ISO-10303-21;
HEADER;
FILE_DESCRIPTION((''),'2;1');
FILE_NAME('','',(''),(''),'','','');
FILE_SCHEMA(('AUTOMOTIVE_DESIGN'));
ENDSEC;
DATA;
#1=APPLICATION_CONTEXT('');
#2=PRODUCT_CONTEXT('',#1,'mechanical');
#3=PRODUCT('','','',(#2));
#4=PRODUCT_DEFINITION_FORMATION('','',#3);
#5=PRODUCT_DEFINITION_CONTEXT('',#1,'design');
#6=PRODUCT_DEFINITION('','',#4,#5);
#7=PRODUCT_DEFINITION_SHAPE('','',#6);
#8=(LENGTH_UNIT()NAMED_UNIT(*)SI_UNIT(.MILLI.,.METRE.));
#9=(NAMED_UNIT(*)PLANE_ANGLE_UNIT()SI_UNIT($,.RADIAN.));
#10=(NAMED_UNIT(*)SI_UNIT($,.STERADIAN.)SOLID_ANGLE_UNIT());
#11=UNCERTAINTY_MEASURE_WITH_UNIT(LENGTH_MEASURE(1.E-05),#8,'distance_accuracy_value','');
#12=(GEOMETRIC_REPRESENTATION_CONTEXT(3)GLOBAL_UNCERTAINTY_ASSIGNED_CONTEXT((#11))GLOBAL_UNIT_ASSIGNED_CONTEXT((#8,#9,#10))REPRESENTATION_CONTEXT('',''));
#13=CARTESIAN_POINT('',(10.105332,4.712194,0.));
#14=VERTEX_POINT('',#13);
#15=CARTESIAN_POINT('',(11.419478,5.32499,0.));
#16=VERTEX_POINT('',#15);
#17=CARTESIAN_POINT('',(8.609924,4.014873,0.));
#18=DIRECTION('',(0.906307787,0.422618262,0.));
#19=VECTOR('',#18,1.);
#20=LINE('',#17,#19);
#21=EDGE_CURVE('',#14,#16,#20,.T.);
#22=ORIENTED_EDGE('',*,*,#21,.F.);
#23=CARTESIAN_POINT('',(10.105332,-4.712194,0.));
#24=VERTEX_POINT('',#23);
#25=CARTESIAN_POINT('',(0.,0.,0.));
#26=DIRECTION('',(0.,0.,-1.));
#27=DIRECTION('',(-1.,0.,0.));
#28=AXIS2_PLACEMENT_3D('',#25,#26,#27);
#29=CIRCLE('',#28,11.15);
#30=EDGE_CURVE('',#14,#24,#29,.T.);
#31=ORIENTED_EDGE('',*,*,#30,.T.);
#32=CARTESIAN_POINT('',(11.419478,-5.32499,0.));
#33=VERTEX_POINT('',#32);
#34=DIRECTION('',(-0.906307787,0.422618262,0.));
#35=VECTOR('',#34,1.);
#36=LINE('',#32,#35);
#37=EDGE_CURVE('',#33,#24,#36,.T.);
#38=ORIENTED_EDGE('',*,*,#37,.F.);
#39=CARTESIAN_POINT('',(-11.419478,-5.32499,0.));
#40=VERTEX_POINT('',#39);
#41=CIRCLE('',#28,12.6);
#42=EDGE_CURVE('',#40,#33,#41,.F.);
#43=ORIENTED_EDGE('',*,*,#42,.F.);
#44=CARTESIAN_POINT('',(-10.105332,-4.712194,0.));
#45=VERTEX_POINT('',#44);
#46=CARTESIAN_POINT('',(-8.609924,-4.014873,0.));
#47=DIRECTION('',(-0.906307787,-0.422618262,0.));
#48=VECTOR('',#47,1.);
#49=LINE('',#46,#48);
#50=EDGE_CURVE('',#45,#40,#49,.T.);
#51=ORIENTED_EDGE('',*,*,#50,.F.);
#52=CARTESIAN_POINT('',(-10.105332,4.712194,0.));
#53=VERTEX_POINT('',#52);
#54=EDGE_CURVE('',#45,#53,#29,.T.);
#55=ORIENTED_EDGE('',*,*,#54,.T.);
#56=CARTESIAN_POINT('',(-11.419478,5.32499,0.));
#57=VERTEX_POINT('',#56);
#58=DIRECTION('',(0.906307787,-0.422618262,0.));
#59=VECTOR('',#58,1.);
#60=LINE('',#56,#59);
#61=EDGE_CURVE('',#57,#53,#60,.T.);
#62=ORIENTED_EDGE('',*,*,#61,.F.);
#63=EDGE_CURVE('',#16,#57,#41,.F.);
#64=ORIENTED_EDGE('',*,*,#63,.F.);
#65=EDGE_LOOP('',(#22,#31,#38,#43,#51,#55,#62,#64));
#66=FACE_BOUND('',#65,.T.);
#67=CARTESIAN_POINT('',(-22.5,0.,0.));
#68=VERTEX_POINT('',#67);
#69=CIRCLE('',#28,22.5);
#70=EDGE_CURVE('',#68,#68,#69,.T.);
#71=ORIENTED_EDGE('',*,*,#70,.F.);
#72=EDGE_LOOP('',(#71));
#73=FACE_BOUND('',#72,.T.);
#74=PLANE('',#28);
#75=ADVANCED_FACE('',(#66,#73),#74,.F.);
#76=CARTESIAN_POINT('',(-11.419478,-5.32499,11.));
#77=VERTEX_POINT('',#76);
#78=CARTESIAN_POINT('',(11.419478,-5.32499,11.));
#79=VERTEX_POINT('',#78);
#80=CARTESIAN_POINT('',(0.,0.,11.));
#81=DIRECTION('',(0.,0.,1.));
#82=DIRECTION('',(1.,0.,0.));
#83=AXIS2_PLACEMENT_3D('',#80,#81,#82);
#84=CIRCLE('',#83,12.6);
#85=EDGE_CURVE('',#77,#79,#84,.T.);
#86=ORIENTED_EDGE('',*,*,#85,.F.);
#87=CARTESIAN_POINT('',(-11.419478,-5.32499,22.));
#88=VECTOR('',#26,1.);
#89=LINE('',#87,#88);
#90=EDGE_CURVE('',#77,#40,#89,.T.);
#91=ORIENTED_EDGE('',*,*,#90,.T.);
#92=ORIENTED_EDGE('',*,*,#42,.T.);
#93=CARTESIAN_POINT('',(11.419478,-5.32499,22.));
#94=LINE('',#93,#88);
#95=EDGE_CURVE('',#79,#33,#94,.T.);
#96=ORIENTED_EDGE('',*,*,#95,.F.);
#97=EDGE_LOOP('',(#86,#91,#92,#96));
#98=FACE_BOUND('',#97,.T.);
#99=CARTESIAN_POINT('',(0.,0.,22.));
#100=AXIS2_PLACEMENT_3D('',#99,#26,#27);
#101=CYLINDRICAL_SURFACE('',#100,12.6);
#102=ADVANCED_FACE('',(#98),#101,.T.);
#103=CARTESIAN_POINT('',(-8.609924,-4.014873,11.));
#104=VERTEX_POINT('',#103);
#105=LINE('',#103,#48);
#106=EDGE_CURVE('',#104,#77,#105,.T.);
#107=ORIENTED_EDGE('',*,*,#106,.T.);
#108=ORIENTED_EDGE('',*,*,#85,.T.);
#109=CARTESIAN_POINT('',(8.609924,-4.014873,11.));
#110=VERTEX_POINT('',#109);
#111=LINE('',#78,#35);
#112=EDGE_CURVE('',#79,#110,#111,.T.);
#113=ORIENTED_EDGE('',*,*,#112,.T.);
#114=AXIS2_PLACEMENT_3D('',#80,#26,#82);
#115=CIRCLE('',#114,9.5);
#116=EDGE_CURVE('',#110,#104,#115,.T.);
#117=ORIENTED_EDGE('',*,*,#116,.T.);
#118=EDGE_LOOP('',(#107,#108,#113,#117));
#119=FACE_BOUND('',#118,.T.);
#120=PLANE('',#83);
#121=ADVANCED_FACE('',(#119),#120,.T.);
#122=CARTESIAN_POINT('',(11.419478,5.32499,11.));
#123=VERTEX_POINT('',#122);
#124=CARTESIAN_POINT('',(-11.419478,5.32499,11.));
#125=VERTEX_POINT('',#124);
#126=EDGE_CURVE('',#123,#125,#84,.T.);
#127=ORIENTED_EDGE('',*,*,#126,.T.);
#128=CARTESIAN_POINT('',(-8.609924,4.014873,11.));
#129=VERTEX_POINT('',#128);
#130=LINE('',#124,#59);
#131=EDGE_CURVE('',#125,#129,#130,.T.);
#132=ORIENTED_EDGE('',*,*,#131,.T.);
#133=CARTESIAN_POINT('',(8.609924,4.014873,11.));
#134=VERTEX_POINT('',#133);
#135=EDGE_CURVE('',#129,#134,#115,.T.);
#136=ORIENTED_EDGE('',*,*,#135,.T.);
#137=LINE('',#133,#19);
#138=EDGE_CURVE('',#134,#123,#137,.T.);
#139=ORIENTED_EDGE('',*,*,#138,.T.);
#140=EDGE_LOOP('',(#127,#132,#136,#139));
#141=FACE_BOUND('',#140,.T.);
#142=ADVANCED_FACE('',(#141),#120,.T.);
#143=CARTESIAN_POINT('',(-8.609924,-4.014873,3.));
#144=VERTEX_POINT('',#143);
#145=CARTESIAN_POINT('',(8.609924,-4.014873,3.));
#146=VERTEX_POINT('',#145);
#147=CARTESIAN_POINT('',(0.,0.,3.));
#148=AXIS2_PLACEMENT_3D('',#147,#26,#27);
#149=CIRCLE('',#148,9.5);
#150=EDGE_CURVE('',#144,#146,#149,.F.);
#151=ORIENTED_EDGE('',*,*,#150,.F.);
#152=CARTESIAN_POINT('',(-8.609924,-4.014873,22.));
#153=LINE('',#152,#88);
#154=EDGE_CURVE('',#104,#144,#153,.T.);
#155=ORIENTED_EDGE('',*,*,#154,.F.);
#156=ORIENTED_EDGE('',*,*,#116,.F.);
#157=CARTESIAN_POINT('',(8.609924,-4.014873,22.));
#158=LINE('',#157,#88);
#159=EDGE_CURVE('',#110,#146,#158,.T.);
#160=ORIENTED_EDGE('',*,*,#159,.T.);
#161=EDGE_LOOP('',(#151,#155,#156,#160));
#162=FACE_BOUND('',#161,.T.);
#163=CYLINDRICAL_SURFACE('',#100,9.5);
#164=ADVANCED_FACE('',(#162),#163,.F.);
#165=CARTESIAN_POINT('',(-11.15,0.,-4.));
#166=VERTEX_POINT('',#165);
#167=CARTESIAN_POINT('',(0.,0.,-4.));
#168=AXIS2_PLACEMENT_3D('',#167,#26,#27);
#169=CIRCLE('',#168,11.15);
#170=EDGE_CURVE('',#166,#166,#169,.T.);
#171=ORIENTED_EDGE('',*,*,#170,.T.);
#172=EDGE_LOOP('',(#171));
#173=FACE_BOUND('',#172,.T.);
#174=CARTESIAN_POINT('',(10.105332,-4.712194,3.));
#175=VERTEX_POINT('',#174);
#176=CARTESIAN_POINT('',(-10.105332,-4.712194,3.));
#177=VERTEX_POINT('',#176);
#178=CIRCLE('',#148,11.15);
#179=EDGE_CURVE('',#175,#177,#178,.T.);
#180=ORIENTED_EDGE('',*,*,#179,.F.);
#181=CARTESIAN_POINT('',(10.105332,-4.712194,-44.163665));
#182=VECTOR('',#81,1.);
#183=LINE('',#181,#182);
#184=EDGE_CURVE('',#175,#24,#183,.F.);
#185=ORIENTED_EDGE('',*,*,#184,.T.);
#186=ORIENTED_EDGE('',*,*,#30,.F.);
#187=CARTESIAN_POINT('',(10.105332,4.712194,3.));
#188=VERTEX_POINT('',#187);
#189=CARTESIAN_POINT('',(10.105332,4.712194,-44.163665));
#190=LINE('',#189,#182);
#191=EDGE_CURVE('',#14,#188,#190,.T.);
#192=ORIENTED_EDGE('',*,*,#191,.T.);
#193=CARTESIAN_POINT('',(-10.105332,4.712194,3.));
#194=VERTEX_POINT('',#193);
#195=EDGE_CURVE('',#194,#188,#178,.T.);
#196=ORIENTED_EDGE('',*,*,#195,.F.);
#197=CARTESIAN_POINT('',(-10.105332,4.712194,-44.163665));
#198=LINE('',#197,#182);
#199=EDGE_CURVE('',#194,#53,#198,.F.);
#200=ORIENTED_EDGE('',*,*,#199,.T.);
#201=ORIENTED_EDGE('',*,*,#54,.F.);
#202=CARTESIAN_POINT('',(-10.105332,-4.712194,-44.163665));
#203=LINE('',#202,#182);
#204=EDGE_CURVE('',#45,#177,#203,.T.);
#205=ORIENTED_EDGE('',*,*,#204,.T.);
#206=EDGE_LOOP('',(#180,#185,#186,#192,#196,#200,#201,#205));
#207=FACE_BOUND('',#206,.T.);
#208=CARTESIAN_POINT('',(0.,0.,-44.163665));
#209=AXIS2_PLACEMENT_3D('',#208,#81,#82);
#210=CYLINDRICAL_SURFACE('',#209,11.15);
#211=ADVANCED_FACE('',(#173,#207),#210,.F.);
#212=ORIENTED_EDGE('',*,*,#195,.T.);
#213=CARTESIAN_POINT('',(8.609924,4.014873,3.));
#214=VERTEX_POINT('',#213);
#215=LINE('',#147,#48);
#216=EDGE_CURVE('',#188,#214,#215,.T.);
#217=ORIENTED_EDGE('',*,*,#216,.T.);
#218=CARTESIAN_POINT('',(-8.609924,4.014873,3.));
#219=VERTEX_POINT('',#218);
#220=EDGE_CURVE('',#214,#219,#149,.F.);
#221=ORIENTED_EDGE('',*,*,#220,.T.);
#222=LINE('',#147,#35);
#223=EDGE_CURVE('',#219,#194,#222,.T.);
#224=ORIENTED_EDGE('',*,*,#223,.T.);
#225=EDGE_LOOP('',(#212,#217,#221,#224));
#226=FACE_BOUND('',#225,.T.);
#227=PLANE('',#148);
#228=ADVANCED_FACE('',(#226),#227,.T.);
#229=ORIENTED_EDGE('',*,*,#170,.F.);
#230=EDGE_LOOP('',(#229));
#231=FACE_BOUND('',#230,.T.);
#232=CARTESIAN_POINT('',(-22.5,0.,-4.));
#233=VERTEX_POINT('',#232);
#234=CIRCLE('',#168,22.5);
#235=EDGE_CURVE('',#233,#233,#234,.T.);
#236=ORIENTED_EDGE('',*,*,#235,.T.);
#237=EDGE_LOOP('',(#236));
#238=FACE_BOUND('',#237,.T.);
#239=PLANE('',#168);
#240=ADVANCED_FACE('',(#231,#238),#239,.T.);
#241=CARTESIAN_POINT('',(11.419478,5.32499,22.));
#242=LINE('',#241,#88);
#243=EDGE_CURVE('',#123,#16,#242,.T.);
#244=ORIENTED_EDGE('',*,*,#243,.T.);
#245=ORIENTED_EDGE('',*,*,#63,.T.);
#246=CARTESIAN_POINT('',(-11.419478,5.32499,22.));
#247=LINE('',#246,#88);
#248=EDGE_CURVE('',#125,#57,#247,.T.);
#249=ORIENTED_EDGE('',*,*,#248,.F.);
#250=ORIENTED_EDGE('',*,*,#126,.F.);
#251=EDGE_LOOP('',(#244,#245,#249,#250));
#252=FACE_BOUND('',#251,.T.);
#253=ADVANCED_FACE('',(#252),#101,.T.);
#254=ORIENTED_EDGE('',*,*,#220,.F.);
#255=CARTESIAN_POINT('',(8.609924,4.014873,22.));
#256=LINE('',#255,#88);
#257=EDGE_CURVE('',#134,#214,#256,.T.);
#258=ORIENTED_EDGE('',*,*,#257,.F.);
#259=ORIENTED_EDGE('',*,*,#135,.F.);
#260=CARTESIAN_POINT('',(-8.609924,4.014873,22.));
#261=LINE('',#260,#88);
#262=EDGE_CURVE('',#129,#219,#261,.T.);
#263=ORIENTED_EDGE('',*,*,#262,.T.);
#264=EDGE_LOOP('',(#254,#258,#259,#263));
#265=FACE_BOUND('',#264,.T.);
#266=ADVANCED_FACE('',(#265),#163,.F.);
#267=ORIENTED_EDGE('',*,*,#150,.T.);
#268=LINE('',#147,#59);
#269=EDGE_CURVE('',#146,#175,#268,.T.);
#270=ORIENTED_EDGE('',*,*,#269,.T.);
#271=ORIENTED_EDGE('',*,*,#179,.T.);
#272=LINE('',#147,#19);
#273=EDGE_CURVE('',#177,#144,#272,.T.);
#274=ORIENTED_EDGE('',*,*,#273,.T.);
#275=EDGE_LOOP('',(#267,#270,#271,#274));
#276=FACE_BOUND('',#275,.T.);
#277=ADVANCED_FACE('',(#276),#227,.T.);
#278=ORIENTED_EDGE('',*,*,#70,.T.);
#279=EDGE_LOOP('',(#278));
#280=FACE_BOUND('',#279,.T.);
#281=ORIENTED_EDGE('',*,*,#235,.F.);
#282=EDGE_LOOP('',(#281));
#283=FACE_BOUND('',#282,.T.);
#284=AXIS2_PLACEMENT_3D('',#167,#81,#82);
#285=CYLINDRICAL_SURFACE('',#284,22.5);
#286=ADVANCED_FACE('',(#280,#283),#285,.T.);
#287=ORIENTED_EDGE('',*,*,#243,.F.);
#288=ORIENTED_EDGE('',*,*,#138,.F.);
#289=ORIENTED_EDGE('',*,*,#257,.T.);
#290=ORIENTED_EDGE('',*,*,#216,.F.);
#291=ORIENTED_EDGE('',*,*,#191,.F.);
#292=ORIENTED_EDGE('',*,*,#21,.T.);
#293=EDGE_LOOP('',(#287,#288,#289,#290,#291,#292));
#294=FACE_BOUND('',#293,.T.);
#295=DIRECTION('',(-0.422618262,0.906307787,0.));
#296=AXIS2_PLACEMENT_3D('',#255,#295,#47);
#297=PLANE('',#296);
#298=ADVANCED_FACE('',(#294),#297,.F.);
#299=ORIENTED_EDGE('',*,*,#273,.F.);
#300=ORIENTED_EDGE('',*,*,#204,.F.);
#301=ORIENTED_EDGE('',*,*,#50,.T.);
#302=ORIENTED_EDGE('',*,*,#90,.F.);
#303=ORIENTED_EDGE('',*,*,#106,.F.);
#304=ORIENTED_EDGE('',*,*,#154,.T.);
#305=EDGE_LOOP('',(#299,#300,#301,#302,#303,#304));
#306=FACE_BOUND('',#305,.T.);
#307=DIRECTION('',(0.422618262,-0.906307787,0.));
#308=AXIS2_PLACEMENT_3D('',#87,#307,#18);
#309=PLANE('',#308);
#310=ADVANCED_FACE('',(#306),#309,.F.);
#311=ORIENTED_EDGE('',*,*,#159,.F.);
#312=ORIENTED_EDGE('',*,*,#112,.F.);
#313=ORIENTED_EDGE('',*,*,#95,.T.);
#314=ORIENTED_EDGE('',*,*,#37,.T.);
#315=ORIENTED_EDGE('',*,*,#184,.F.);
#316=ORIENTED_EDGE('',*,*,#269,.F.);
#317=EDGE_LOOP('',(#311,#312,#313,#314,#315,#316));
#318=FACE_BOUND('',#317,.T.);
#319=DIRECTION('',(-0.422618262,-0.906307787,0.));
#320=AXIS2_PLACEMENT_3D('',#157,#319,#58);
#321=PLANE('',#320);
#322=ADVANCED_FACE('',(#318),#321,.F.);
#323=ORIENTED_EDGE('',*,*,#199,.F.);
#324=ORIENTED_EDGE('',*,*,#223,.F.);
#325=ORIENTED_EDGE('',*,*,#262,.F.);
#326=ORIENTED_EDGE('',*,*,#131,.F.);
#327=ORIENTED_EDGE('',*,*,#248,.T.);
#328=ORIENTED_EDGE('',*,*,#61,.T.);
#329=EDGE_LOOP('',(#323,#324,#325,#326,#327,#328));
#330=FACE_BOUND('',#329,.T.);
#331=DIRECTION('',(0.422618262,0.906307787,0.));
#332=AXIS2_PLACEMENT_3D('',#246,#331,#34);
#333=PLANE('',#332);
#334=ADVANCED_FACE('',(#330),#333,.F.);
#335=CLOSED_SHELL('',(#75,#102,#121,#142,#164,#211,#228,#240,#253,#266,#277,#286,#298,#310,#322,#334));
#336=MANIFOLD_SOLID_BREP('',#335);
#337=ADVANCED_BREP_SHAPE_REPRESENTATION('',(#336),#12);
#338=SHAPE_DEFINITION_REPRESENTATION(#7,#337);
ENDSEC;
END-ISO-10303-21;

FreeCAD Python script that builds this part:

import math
import FreeCAD as App
import Part
import Sketcher
from FreeCAD import Vector
Q = App.Units.Quantity

doc = App.newDocument("Part")
body = doc.addObject("PartDesign::Body", "Body")

sketch1 = body.newObject("Sketcher::SketchObject", "Sketch")
sketch1.AttachmentSupport = (doc.getObject("XY_Plane"), [""])
sketch1.MapMode = "FlatFace"
sketch1.addGeometry(Part.LineSegment(Vector(-2.5, 18, 0), Vector(-2.5, 13.978197, 0)), False)
sketch1.addGeometry(Part.ArcOfCircle(Part.Circle(Vector(0, 0, 0), Vector(0, 0, 1), 14.2), math.radians(100.140136), math.radians(169.859864)), False)
sketch1.addGeometry(Part.LineSegment(Vector(-13.978197, 2.5, 0), Vector(-18, 2.5, 0)), False)
sketch1.addGeometry(Part.LineSegment(Vector(-18, 2.5, 0), Vector(-18, -2.5, 0)), False)
sketch1.addGeometry(Part.LineSegment(Vector(-18, -2.5, 0), Vector(-13.978197, -2.5, 0)), False)
sketch1.addGeometry(Part.ArcOfCircle(Part.Circle(Vector(0, 0, 0), Vector(0, 0, 1), 14.2), math.radians(-169.859864), math.radians(-100.140136)), False)
sketch1.addGeometry(Part.LineSegment(Vector(-2.5, -13.978197, 0), Vector(-2.5, -18, 0)), False)
sketch1.addGeometry(Part.LineSegment(Vector(-2.5, -18, 0), Vector(2.5, -18, 0)), False)
sketch1.addGeometry(Part.LineSegment(Vector(2.5, -18, 0), Vector(2.5, -13.978197, 0)), False)
sketch1.addGeometry(Part.ArcOfCircle(Part.Circle(Vector(0, 0, 0), Vector(0, 0, 1), 14.2), math.radians(-79.859864), math.radians(-10.140136)), False)
sketch1.addGeometry(Part.LineSegment(Vector(13.978197, -2.5, 0), Vector(18, -2.5, 0)), False)
sketch1.addGeometry(Part.LineSegment(Vector(18, -2.5, 0), Vector(18, 2.5, 0)), False)
sketch1.addGeometry(Part.LineSegment(Vector(18, 2.5, 0), Vector(13.978197, 2.5, 0)), False)
sketch1.addGeometry(Part.ArcOfCircle(Part.Circle(Vector(0, 0, 0), Vector(0, 0, 1), 14.2), math.radians(10.140136), math.radians(79.859864)), False)
sketch1.addGeometry(Part.LineSegment(Vector(2.5, 13.978197, 0), Vector(2.5, 18, 0)), False)
sketch1.addGeometry(Part.LineSegment(Vector(2.5, 18, 0), Vector(-2.5, 18, 0)), False)
sketch1.addGeometry(Part.Circle(Vector(0, 0, 0), Vector(0, 0, 1), 11.15), False)
sketch1.addConstraint(Sketcher.Constraint("Coincident", 0, 2, 1, 1))
sketch1.addConstraint(Sketcher.Constraint("Coincident", 1, 2, 2, 1))
sketch1.addConstraint(Sketcher.Constraint("Coincident", 2, 2, 3, 1))
sketch1.addConstraint(Sketcher.Constraint("Coincident", 3, 2, 4, 1))
sketch1.addConstraint(Sketcher.Constraint("Coincident", 4, 2, 5, 1))
sketch1.addConstraint(Sketcher.Constraint("Coincident", 5, 2, 6, 1))
sketch1.addConstraint(Sketcher.Constraint("Coincident", 6, 2, 7, 1))
sketch1.addConstraint(Sketcher.Constraint("Coincident", 7, 2, 8, 1))
sketch1.addConstraint(Sketcher.Constraint("Coincident", 8, 2, 9, 1))
sketch1.addConstraint(Sketcher.Constraint("Coincident", 9, 2, 10, 1))
sketch1.addConstraint(Sketcher.Constraint("Coincident", 10, 2, 11, 1))
sketch1.addConstraint(Sketcher.Constraint("Coincident", 11, 2, 12, 1))
sketch1.addConstraint(Sketcher.Constraint("Coincident", 12, 2, 13, 1))
sketch1.addConstraint(Sketcher.Constraint("Coincident", 13, 2, 14, 1))
sketch1.addConstraint(Sketcher.Constraint("Coincident", 14, 2, 15, 1))
sketch1.addConstraint(Sketcher.Constraint("Coincident", 15, 2, 0, 1))
sketch1.addConstraint(Sketcher.Constraint("Vertical", 0))
sketch1.addConstraint(Sketcher.Constraint("Horizontal", 2))
sketch1.addConstraint(Sketcher.Constraint("Vertical", 3))
sketch1.addConstraint(Sketcher.Constraint("Horizontal", 4))
sketch1.addConstraint(Sketcher.Constraint("Vertical", 6))
sketch1.addConstraint(Sketcher.Constraint("Horizontal", 7))
sketch1.addConstraint(Sketcher.Constraint("Vertical", 8))
sketch1.addConstraint(Sketcher.Constraint("Horizontal", 10))
sketch1.addConstraint(Sketcher.Constraint("Vertical", 11))
sketch1.addConstraint(Sketcher.Constraint("Horizontal", 12))
sketch1.addConstraint(Sketcher.Constraint("Vertical", 14))
sketch1.addConstraint(Sketcher.Constraint("Horizontal", 15))
sketch1.addConstraint(Sketcher.Constraint("Coincident", 1, 3, -1, 1))
sketch1.addConstraint(Sketcher.Constraint("Coincident", 5, 3, -1, 1))
sketch1.addConstraint(Sketcher.Constraint("Coincident", 9, 3, -1, 1))
sketch1.addConstraint(Sketcher.Constraint("Coincident", 13, 3, -1, 1))
sketch1.addConstraint(Sketcher.Constraint("Coincident", 16, 3, -1, 1))
sketch1.addConstraint(Sketcher.Constraint("Equal", 1, 5))
sketch1.addConstraint(Sketcher.Constraint("Equal", 5, 9))
sketch1.addConstraint(Sketcher.Constraint("Equal", 9, 13))
sketch1.addConstraint(Sketcher.Constraint("Symmetric", 2, 2, 10, 2, -1, 1))
sketch1.addConstraint(Sketcher.Constraint("Symmetric", 6, 2, 14, 2, -1, 1))
sketch1.addConstraint(Sketcher.Constraint("Horizontal", 5, 2, 8, 2))
sketch1.addConstraint(Sketcher.Constraint("Horizontal", 4, 2, 9, 2))
sketch1.addConstraint(Sketcher.Constraint("Horizontal", 2, 2, 11, 2))
sketch1.addConstraint(Sketcher.Constraint("Horizontal", 0, 2, 13, 2))
sketch1.addConstraint(Sketcher.Constraint("Equal", 12, 0))
sketch1.addConstraint(Sketcher.Constraint("Equal", 15, 3))
sketch1.addConstraint(Sketcher.Constraint("Diameter", 16, Q("22.3 mm")))
sketch1.addConstraint(Sketcher.Constraint("Radius", 1, Q("14.2 mm")))
sketch1.addConstraint(Sketcher.Constraint("DistanceX", 7, 1, 7, 2, Q("5 mm")))
sketch1.addConstraint(Sketcher.Constraint("DistanceX", 2, 2, -1, 1, Q("18 mm")))
pad1 = body.newObject("PartDesign::Pad", "Pad")
pad1.Profile = sketch1
pad1.Length = 15

sketch2 = body.newObject("Sketcher::SketchObject", "Sketch001")
sketch2.AttachmentSupport = (doc.getObject("XY_Plane"), [""])
sketch2.MapMode = "FlatFace"
sketch2.AttachmentOffset = App.Placement(Vector(0, 0, 7), App.Rotation())
sketch2.addGeometry(Part.Circle(Vector(0, 0, 0), Vector(0, 0, 1), 11.15), False)
sketch2.addGeometry(Part.Circle(Vector(0, 0, 0), Vector(0, 0, 1), 8), False)
sketch2.addConstraint(Sketcher.Constraint("Coincident", 0, 3, -1, 1))
sketch2.addConstraint(Sketcher.Constraint("Coincident", 1, 3, -1, 1))
sketch2.addConstraint(Sketcher.Constraint("Diameter", 1, Q("16 mm")))
sketch2.addConstraint(Sketcher.Constraint("Diameter", 0, Q("22.3 mm")))
pad2 = body.newObject("PartDesign::Pad", "Pad001")
pad2.Profile = sketch2
pad2.Length = 8
body2 = doc.addObject("PartDesign::Body", "Body001")

sketch3 = body2.newObject("Sketcher::SketchObject", "Sketch002")
sketch3.AttachmentSupport = (doc.getObject("XY_Plane001"), [""])
sketch3.MapMode = "FlatFace"
sketch3.addGeometry(Part.Circle(Vector(0, 0, 0), Vector(0, 0, 1), 22.5), False)
sketch3.addGeometry(Part.ArcOfCircle(Part.Circle(Vector(0, 0, 0), Vector(0, 0, 1), 14.2), math.radians(10.140136), math.radians(79.859864)), False)
sketch3.addGeometry(Part.ArcOfCircle(Part.Circle(Vector(0, 0, 0), Vector(0, 0, 1), 14.2), math.radians(79.859864), math.radians(100.140136)), False)
sketch3.addGeometry(Part.ArcOfCircle(Part.Circle(Vector(0, 0, 0), Vector(0, 0, 1), 14.2), math.radians(100.140136), math.radians(169.859864)), False)
sketch3.addGeometry(Part.ArcOfCircle(Part.Circle(Vector(0, 0, 0), Vector(0, 0, 1), 14.2), math.radians(169.859864), math.radians(190.140136)), False)
sketch3.addGeometry(Part.ArcOfCircle(Part.Circle(Vector(0, 0, 0), Vector(0, 0, 1), 14.2), math.radians(-169.859864), math.radians(-100.140136)), False)
sketch3.addGeometry(Part.ArcOfCircle(Part.Circle(Vector(0, 0, 0), Vector(0, 0, 1), 14.2), math.radians(-100.140136), math.radians(-79.859864)), False)
sketch3.addGeometry(Part.ArcOfCircle(Part.Circle(Vector(0, 0, 0), Vector(0, 0, 1), 14.2), math.radians(-79.859864), math.radians(-10.140136)), False)
sketch3.addGeometry(Part.ArcOfCircle(Part.Circle(Vector(0, 0, 0), Vector(0, 0, 1), 14.2), math.radians(-10.140136), math.radians(10.140136)), False)
sketch3.addConstraint(Sketcher.Constraint("Tangent", 1, 2, 2, 1))
sketch3.addConstraint(Sketcher.Constraint("Tangent", 2, 2, 3, 1))
sketch3.addConstraint(Sketcher.Constraint("Tangent", 3, 2, 4, 1))
sketch3.addConstraint(Sketcher.Constraint("Tangent", 4, 2, 5, 1))
sketch3.addConstraint(Sketcher.Constraint("Tangent", 5, 2, 6, 1))
sketch3.addConstraint(Sketcher.Constraint("Tangent", 6, 2, 7, 1))
sketch3.addConstraint(Sketcher.Constraint("Tangent", 7, 2, 8, 1))
sketch3.addConstraint(Sketcher.Constraint("Tangent", 8, 2, 1, 1))
sketch3.addConstraint(Sketcher.Constraint("Coincident", 0, 3, -1, 1))
sketch3.addConstraint(Sketcher.Constraint("Coincident", 1, 3, -1, 1))
sketch3.addConstraint(Sketcher.Constraint("Coincident", 3, 3, -1, 1))
sketch3.addConstraint(Sketcher.Constraint("Coincident", 5, 3, -1, 1))
sketch3.addConstraint(Sketcher.Constraint("Equal", 5, 6))
sketch3.addConstraint(Sketcher.Constraint("Horizontal", 1, 2, 2, 2))
sketch3.addConstraint(Sketcher.Constraint("Horizontal", 5, 2, 6, 2))
sketch3.addConstraint(Sketcher.Constraint("Horizontal", 4, 2, 7, 2))
sketch3.addConstraint(Sketcher.Constraint("Horizontal", 3, 2, 8, 2))
sketch3.addConstraint(Sketcher.Constraint("Vertical", 3, 2, 4, 2))
sketch3.addConstraint(Sketcher.Constraint("Vertical", 2, 2, 5, 2))
sketch3.addConstraint(Sketcher.Constraint("Diameter", 0, Q("45 mm")))
sketch3.addConstraint(Sketcher.Constraint("Radius", 1, Q("14.2 mm")))
sketch3.addConstraint(Sketcher.Constraint("DistanceX", 2, 2, 1, 2, Q("5 mm")))
sketch3.addConstraint(Sketcher.Constraint("DistanceY", 4, 2, 3, 2, Q("5 mm")))
pad3 = body2.newObject("PartDesign::Pad", "Pad002")
pad3.Profile = sketch3
pad3.Length = 4
pad3.Reversed = True
doc.recompute()

boolean = body.newObject("PartDesign::Boolean", "Boolean")
boolean.Type = "Fuse"
boolean.addObjects([body2])

sketch4 = body.newObject("Sketcher::SketchObject", "Sketch003")
sketch4.AttachmentSupport = (doc.getObject("XY_Plane"), [""])
sketch4.MapMode = "FlatFace"
sketch4.AttachmentOffset = App.Placement(Vector(0, 0, -4), App.Rotation())
sketch4.addGeometry(Part.Circle(Vector(0, 0, 0), Vector(0, 0, 1), 14.2), False)
sketch4.addGeometry(Part.Circle(Vector(0, 0, 0), Vector(0, 0, 1), 11.15), False)
sketch4.addConstraint(Sketcher.Constraint("Coincident", 0, 3, -1, 1))
sketch4.addConstraint(Sketcher.Constraint("Coincident", 1, 3, -1, 1))
sketch4.addConstraint(Sketcher.Constraint("Diameter", 0, Q("28.4 mm")))
sketch4.addConstraint(Sketcher.Constraint("Diameter", 1, Q("22.3 mm")))
pad4 = body.newObject("PartDesign::Pad", "Pad003")
pad4.Profile = sketch4
pad4.Length = 4

sketch5 = body.newObject("Sketcher::SketchObject", "Sketch004")
sketch5.AttachmentSupport = (doc.getObject("XY_Plane"), [""])
sketch5.MapMode = "FlatFace"
sketch5.AttachmentOffset = App.Placement(Vector(0, 0, 3), App.Rotation())
sketch5.addGeometry(Part.Circle(Vector(0, 0, 0), Vector(0, 0, 1), 11.15), False)
sketch5.addGeometry(Part.Circle(Vector(0, 0, 0), Vector(0, 0, 1), 8), False)
sketch5.addConstraint(Sketcher.Constraint("Coincident", 0, 3, -1, 1))
sketch5.addConstraint(Sketcher.Constraint("Coincident", 1, 3, -1, 1))
sketch5.addConstraint(Sketcher.Constraint("Diameter", 1, Q("16 mm")))
sketch5.addConstraint(Sketcher.Constraint("Diameter", 0, Q("22.3 mm")))
pad5 = body.newObject("PartDesign::Pad", "Pad004")
pad5.Profile = sketch5
pad5.Length = 4

sketch6 = body.newObject("Sketcher::SketchObject", "Sketch005")
sketch6.AttachmentSupport = (doc.getObject("XY_Plane"), [""])
sketch6.MapMode = "FlatFace"
sketch6.AttachmentOffset = App.Placement(Vector(0, 0, 15), App.Rotation())
sketch6.addGeometry(Part.LineSegment(Vector(-11.419478, 5.32499, 0), Vector(-8.609924, 4.014873, 0)), False)
sketch6.addGeometry(Part.ArcOfCircle(Part.Circle(Vector(0, 0, 0), Vector(0, 0, 1), 9.5), math.radians(25), math.radians(155)), False)
sketch6.addGeometry(Part.LineSegment(Vector(8.609924, 4.014873, 0), Vector(11.419478, 5.32499, 0)), False)
sketch6.addGeometry(Part.ArcOfCircle(Part.Circle(Vector(0, 0, 0), Vector(0, 0, 1), 12.6), math.radians(25), math.radians(155)), False)
sketch6.addGeometry(Part.LineSegment(Vector(-8.609924, -4.014873, 0), Vector(-11.419478, -5.32499, 0)), False)
sketch6.addGeometry(Part.ArcOfCircle(Part.Circle(Vector(0, 0, 0), Vector(0, 0, 1), 12.6), math.radians(-155), math.radians(-25)), False)
sketch6.addGeometry(Part.LineSegment(Vector(11.419478, -5.32499, 0), Vector(8.609924, -4.014873, 0)), False)
sketch6.addGeometry(Part.ArcOfCircle(Part.Circle(Vector(0, 0, 0), Vector(0, 0, 1), 9.5), math.radians(-155), math.radians(-25)), False)
sketch6.addConstraint(Sketcher.Constraint("Coincident", 0, 2, 1, 2))
sketch6.addConstraint(Sketcher.Constraint("Coincident", 1, 1, 2, 1))
sketch6.addConstraint(Sketcher.Constraint("Coincident", 2, 2, 3, 1))
sketch6.addConstraint(Sketcher.Constraint("Coincident", 3, 2, 0, 1))
sketch6.addConstraint(Sketcher.Constraint("Coincident", 4, 2, 5, 1))
sketch6.addConstraint(Sketcher.Constraint("Coincident", 5, 2, 6, 1))
sketch6.addConstraint(Sketcher.Constraint("Coincident", 6, 2, 7, 2))
sketch6.addConstraint(Sketcher.Constraint("Coincident", 7, 1, 4, 1))
sketch6.addConstraint(Sketcher.Constraint("Coincident", 1, 3, -1, 1))
sketch6.addConstraint(Sketcher.Constraint("Coincident", 3, 3, -1, 1))
sketch6.addConstraint(Sketcher.Constraint("Coincident", 5, 3, -1, 1))
sketch6.addConstraint(Sketcher.Constraint("Coincident", 7, 3, -1, 1))
sketch6.addConstraint(Sketcher.Constraint("Equal", 3, 5))
sketch6.addConstraint(Sketcher.Constraint("Equal", 1, 7))
sketch6.addConstraint(Sketcher.Constraint("Parallel", 2, 4))
sketch6.addConstraint(Sketcher.Constraint("Parallel", 0, 6))
sketch6.addConstraint(Sketcher.Constraint("Horizontal", 0, 2, 1, 1))
sketch6.addConstraint(Sketcher.Constraint("Horizontal", 2, 2, 3, 2))
sketch6.addConstraint(Sketcher.Constraint("Horizontal", 4, 2, 5, 2))
sketch6.addConstraint(Sketcher.Constraint("Vertical", 3, 2, 4, 2))
sketch6.addConstraint(Sketcher.Constraint("Radius", 1, Q("9.5 mm")))
sketch6.addConstraint(Sketcher.Constraint("Radius", 3, Q("12.6 mm")))
sketch6.addConstraint(Sketcher.Constraint("Angle", 0, Q("-25 deg")))
sketch6.addConstraint(Sketcher.Constraint("DistanceX", -1, 1, 2, 2, Q("11.419478 mm")))
pad6 = body.newObject("PartDesign::Pad", "Pad005")
pad6.Profile = sketch6
pad6.Length = 7

sketch7 = body.newObject("Sketcher::SketchObject", "Sketch006")
sketch7.AttachmentSupport = (doc.getObject("XY_Plane"), [""])
sketch7.MapMode = "FlatFace"
sketch7.addGeometry(Part.LineSegment(Vector(-2.5, 18, 0), Vector(-2.5, 13.978197, 0)), False)
sketch7.addGeometry(Part.ArcOfCircle(Part.Circle(Vector(0, 0, 0), Vector(0, 0, 1), 14.2), math.radians(100.140136), math.radians(169.859864)), False)
sketch7.addGeometry(Part.LineSegment(Vector(-13.978197, 2.5, 0), Vector(-18, 2.5, 0)), False)
sketch7.addGeometry(Part.LineSegment(Vector(-18, 2.5, 0), Vector(-18, -2.5, 0)), False)
sketch7.addGeometry(Part.LineSegment(Vector(-18, -2.5, 0), Vector(-13.978197, -2.5, 0)), False)
sketch7.addGeometry(Part.ArcOfCircle(Part.Circle(Vector(0, 0, 0), Vector(0, 0, 1), 14.2), math.radians(-169.859864), math.radians(-100.140136)), False)
sketch7.addGeometry(Part.LineSegment(Vector(-2.5, -13.978197, 0), Vector(-2.5, -18, 0)), False)
sketch7.addGeometry(Part.LineSegment(Vector(-2.5, -18, 0), Vector(2.5, -18, 0)), False)
sketch7.addGeometry(Part.LineSegment(Vector(2.5, -18, 0), Vector(2.5, -13.978197, 0)), False)
sketch7.addGeometry(Part.ArcOfCircle(Part.Circle(Vector(0, 0, 0), Vector(0, 0, 1), 14.2), math.radians(-79.859864), math.radians(-10.140136)), False)
sketch7.addGeometry(Part.LineSegment(Vector(13.978197, -2.5, 0), Vector(18, -2.5, 0)), False)
sketch7.addGeometry(Part.LineSegment(Vector(18, -2.5, 0), Vector(18, 2.5, 0)), False)
sketch7.addGeometry(Part.LineSegment(Vector(18, 2.5, 0), Vector(13.978197, 2.5, 0)), False)
sketch7.addGeometry(Part.ArcOfCircle(Part.Circle(Vector(0, 0, 0), Vector(0, 0, 1), 14.2), math.radians(10.140136), math.radians(79.859864)), False)
sketch7.addGeometry(Part.LineSegment(Vector(2.5, 13.978197, 0), Vector(2.5, 18, 0)), False)
sketch7.addGeometry(Part.LineSegment(Vector(2.5, 18, 0), Vector(-2.5, 18, 0)), False)
sketch7.addGeometry(Part.LineSegment(Vector(8.609924, -4.014873, 0), Vector(11.419478, -5.32499, 0)), False)
sketch7.addGeometry(Part.ArcOfCircle(Part.Circle(Vector(0, 0, 0), Vector(0, 0, 1), 12.6), math.radians(-155), math.radians(-25)), False)
sketch7.addGeometry(Part.LineSegment(Vector(-11.419478, -5.32499, 0), Vector(-8.609924, -4.014873, 0)), False)
sketch7.addGeometry(Part.ArcOfCircle(Part.Circle(Vector(0, 0, 0), Vector(0, 0, 1), 9.5), math.radians(-155), math.radians(-25)), False)
sketch7.addGeometry(Part.LineSegment(Vector(11.419478, 5.32499, 0), Vector(8.609924, 4.014873, 0)), False)
sketch7.addGeometry(Part.ArcOfCircle(Part.Circle(Vector(0, 0, 0), Vector(0, 0, 1), 9.5), math.radians(25), math.radians(155)), False)
sketch7.addGeometry(Part.LineSegment(Vector(-8.609924, 4.014873, 0), Vector(-11.419478, 5.32499, 0)), False)
sketch7.addGeometry(Part.ArcOfCircle(Part.Circle(Vector(0, 0, 0), Vector(0, 0, 1), 12.6), math.radians(25), math.radians(155)), False)
sketch7.addConstraint(Sketcher.Constraint("Coincident", 0, 2, 1, 1))
sketch7.addConstraint(Sketcher.Constraint("Coincident", 1, 2, 2, 1))
sketch7.addConstraint(Sketcher.Constraint("Coincident", 2, 2, 3, 1))
sketch7.addConstraint(Sketcher.Constraint("Coincident", 3, 2, 4, 1))
sketch7.addConstraint(Sketcher.Constraint("Coincident", 4, 2, 5, 1))
sketch7.addConstraint(Sketcher.Constraint("Coincident", 5, 2, 6, 1))
sketch7.addConstraint(Sketcher.Constraint("Coincident", 6, 2, 7, 1))
sketch7.addConstraint(Sketcher.Constraint("Coincident", 7, 2, 8, 1))
sketch7.addConstraint(Sketcher.Constraint("Coincident", 8, 2, 9, 1))
sketch7.addConstraint(Sketcher.Constraint("Coincident", 9, 2, 10, 1))
sketch7.addConstraint(Sketcher.Constraint("Coincident", 10, 2, 11, 1))
sketch7.addConstraint(Sketcher.Constraint("Coincident", 11, 2, 12, 1))
sketch7.addConstraint(Sketcher.Constraint("Coincident", 12, 2, 13, 1))
sketch7.addConstraint(Sketcher.Constraint("Coincident", 13, 2, 14, 1))
sketch7.addConstraint(Sketcher.Constraint("Coincident", 14, 2, 15, 1))
sketch7.addConstraint(Sketcher.Constraint("Coincident", 15, 2, 0, 1))
sketch7.addConstraint(Sketcher.Constraint("Coincident", 16, 2, 17, 2))
sketch7.addConstraint(Sketcher.Constraint("Coincident", 17, 1, 18, 1))
sketch7.addConstraint(Sketcher.Constraint("Coincident", 18, 2, 19, 1))
sketch7.addConstraint(Sketcher.Constraint("Coincident", 19, 2, 16, 1))
sketch7.addConstraint(Sketcher.Constraint("Coincident", 20, 2, 21, 1))
sketch7.addConstraint(Sketcher.Constraint("Coincident", 21, 2, 22, 1))
sketch7.addConstraint(Sketcher.Constraint("Coincident", 22, 2, 23, 2))
sketch7.addConstraint(Sketcher.Constraint("Coincident", 23, 1, 20, 1))
sketch7.addConstraint(Sketcher.Constraint("Vertical", 0))
sketch7.addConstraint(Sketcher.Constraint("Horizontal", 2))
sketch7.addConstraint(Sketcher.Constraint("Vertical", 3))
sketch7.addConstraint(Sketcher.Constraint("Horizontal", 4))
sketch7.addConstraint(Sketcher.Constraint("Vertical", 6))
sketch7.addConstraint(Sketcher.Constraint("Horizontal", 7))
sketch7.addConstraint(Sketcher.Constraint("Vertical", 8))
sketch7.addConstraint(Sketcher.Constraint("Horizontal", 10))
sketch7.addConstraint(Sketcher.Constraint("Vertical", 11))
sketch7.addConstraint(Sketcher.Constraint("Horizontal", 12))
sketch7.addConstraint(Sketcher.Constraint("Vertical", 14))
sketch7.addConstraint(Sketcher.Constraint("Horizontal", 15))
sketch7.addConstraint(Sketcher.Constraint("Coincident", 1, 3, -1, 1))
sketch7.addConstraint(Sketcher.Constraint("Coincident", 5, 3, -1, 1))
sketch7.addConstraint(Sketcher.Constraint("Coincident", 9, 3, -1, 1))
sketch7.addConstraint(Sketcher.Constraint("Coincident", 13, 3, -1, 1))
sketch7.addConstraint(Sketcher.Constraint("Coincident", 17, 3, -1, 1))
sketch7.addConstraint(Sketcher.Constraint("Coincident", 19, 3, -1, 1))
sketch7.addConstraint(Sketcher.Constraint("Coincident", 21, 3, -1, 1))
sketch7.addConstraint(Sketcher.Constraint("Coincident", 23, 3, -1, 1))
sketch7.addConstraint(Sketcher.Constraint("Equal", 1, 5))
sketch7.addConstraint(Sketcher.Constraint("Equal", 5, 9))
sketch7.addConstraint(Sketcher.Constraint("Equal", 9, 13))
sketch7.addConstraint(Sketcher.Constraint("Equal", 19, 21))
sketch7.addConstraint(Sketcher.Constraint("Equal", 17, 23))
sketch7.addConstraint(Sketcher.Constraint("Symmetric", 2, 2, 10, 2, -1, 1))
sketch7.addConstraint(Sketcher.Constraint("Symmetric", 6, 2, 14, 2, -1, 1))
sketch7.addConstraint(Sketcher.Constraint("Parallel", 18, 20))
sketch7.addConstraint(Sketcher.Constraint("Parallel", 16, 22))
sketch7.addConstraint(Sketcher.Constraint("Horizontal", 5, 2, 8, 2))
sketch7.addConstraint(Sketcher.Constraint("Horizontal", 4, 2, 9, 2))
sketch7.addConstraint(Sketcher.Constraint("Horizontal", 2, 2, 11, 2))
sketch7.addConstraint(Sketcher.Constraint("Horizontal", 0, 2, 13, 2))
sketch7.addConstraint(Sketcher.Constraint("Horizontal", 16, 2, 17, 1))
sketch7.addConstraint(Sketcher.Constraint("Horizontal", 18, 2, 19, 2))
sketch7.addConstraint(Sketcher.Constraint("Horizontal", 20, 2, 21, 2))
sketch7.addConstraint(Sketcher.Constraint("Vertical", 19, 2, 20, 2))
sketch7.addConstraint(Sketcher.Constraint("Equal", 12, 0))
sketch7.addConstraint(Sketcher.Constraint("Equal", 15, 3))
sketch7.addConstraint(Sketcher.Constraint("Radius", 1, Q("14.2 mm")))
sketch7.addConstraint(Sketcher.Constraint("Radius", 17, Q("12.6 mm")))
sketch7.addConstraint(Sketcher.Constraint("Radius", 19, Q("9.5 mm")))
sketch7.addConstraint(Sketcher.Constraint("DistanceX", 7, 1, 7, 2, Q("5 mm")))
sketch7.addConstraint(Sketcher.Constraint("Angle", 16, Q("-25 deg")))
sketch7.addConstraint(Sketcher.Constraint("DistanceX", 2, 2, -1, 1, Q("18 mm")))
sketch7.addConstraint(Sketcher.Constraint("DistanceX", -1, 1, 16, 2, Q("11.419478 mm")))
pocket1 = body.newObject("PartDesign::Pocket", "Pocket")
pocket1.Profile = sketch7
pocket1.Length = 15
pocket1.Reversed = True

sketch8 = body.newObject("Sketcher::SketchObject", "Sketch007")
sketch8.AttachmentSupport = (doc.getObject("XY_Plane"), [""])
sketch8.MapMode = "FlatFace"
sketch8.AttachmentOffset = App.Placement(Vector(0, 0, 11), App.Rotation())
sketch8.addGeometry(Part.LineSegment(Vector(11.419478, -5.32499, 0), Vector(8.609924, -4.014873, 0)), False)
sketch8.addGeometry(Part.ArcOfCircle(Part.Circle(Vector(0, 0, 0), Vector(0, 0, 1), 9.5), math.radians(-155), math.radians(-25)), False)
sketch8.addGeometry(Part.LineSegment(Vector(-8.609924, -4.014873, 0), Vector(-11.419478, -5.32499, 0)), False)
sketch8.addGeometry(Part.ArcOfCircle(Part.Circle(Vector(0, 0, 0), Vector(0, 0, 1), 12.6), math.radians(-155), math.radians(-25)), False)
sketch8.addGeometry(Part.LineSegment(Vector(8.609924, 4.014873, 0), Vector(11.419478, 5.32499, 0)), False)
sketch8.addGeometry(Part.ArcOfCircle(Part.Circle(Vector(0, 0, 0), Vector(0, 0, 1), 12.6), math.radians(25), math.radians(155)), False)
sketch8.addGeometry(Part.LineSegment(Vector(-11.419478, 5.32499, 0), Vector(-8.609924, 4.014873, 0)), False)
sketch8.addGeometry(Part.ArcOfCircle(Part.Circle(Vector(0, 0, 0), Vector(0, 0, 1), 9.5), math.radians(25), math.radians(155)), False)
sketch8.addConstraint(Sketcher.Constraint("Coincident", 0, 2, 1, 2))
sketch8.addConstraint(Sketcher.Constraint("Coincident", 1, 1, 2, 1))
sketch8.addConstraint(Sketcher.Constraint("Coincident", 2, 2, 3, 1))
sketch8.addConstraint(Sketcher.Constraint("Coincident", 3, 2, 0, 1))
sketch8.addConstraint(Sketcher.Constraint("Coincident", 4, 2, 5, 1))
sketch8.addConstraint(Sketcher.Constraint("Coincident", 5, 2, 6, 1))
sketch8.addConstraint(Sketcher.Constraint("Coincident", 6, 2, 7, 2))
sketch8.addConstraint(Sketcher.Constraint("Coincident", 7, 1, 4, 1))
sketch8.addConstraint(Sketcher.Constraint("Coincident", 1, 3, -1, 1))
sketch8.addConstraint(Sketcher.Constraint("Coincident", 3, 3, -1, 1))
sketch8.addConstraint(Sketcher.Constraint("Coincident", 5, 3, -1, 1))
sketch8.addConstraint(Sketcher.Constraint("Coincident", 7, 3, -1, 1))
sketch8.addConstraint(Sketcher.Constraint("Equal", 3, 5))
sketch8.addConstraint(Sketcher.Constraint("Equal", 1, 7))
sketch8.addConstraint(Sketcher.Constraint("Parallel", 2, 4))
sketch8.addConstraint(Sketcher.Constraint("Parallel", 0, 6))
sketch8.addConstraint(Sketcher.Constraint("Horizontal", 0, 2, 1, 1))
sketch8.addConstraint(Sketcher.Constraint("Horizontal", 2, 2, 3, 2))
sketch8.addConstraint(Sketcher.Constraint("Horizontal", 4, 2, 5, 2))
sketch8.addConstraint(Sketcher.Constraint("Vertical", 3, 2, 4, 2))
sketch8.addConstraint(Sketcher.Constraint("Radius", 1, Q("9.5 mm")))
sketch8.addConstraint(Sketcher.Constraint("Radius", 3, Q("12.6 mm")))
sketch8.addConstraint(Sketcher.Constraint("Angle", 0, Q("155 deg")))
sketch8.addConstraint(Sketcher.Constraint("DistanceX", 2, 2, -1, 1, Q("11.419478 mm")))
pocket2 = body.newObject("PartDesign::Pocket", "Pocket001")
pocket2.Profile = sketch8
pocket2.Length = 11
pocket2.Reversed = True

doc.recompute()
